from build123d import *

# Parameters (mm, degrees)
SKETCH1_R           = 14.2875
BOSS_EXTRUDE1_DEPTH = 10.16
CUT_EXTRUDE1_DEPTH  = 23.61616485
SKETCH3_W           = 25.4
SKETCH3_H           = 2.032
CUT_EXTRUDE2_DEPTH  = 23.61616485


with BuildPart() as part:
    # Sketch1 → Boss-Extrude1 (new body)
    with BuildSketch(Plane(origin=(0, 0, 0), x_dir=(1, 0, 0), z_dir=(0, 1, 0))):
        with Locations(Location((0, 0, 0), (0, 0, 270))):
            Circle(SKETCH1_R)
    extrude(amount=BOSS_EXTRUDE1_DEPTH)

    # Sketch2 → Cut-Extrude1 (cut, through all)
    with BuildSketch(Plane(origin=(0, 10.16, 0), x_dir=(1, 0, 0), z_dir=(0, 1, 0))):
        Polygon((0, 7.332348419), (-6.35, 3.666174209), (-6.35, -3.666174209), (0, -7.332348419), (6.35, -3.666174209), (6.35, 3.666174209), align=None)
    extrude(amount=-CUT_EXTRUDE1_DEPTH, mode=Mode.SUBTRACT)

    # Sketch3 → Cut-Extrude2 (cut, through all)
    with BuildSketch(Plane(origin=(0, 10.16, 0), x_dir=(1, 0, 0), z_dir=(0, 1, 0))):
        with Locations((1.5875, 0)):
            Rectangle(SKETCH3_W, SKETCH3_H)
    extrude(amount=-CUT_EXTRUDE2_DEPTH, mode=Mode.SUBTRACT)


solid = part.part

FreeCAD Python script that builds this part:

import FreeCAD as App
import Part
import Sketcher
Q = App.Units.Quantity


def add_polygon(sketch, points):
    """Adds a closed chain of lines whose ends are joined by coincident constraints."""
    first, n = sketch.GeometryCount, len(points)
    for a, b in zip(points, points[1:] + points[:1]):
        sketch.addGeometry(Part.LineSegment(App.Vector(*a, 0), App.Vector(*b, 0)), False)
    for i in range(n):
        sketch.addConstraint(Sketcher.Constraint("Coincident", first + i, 2, first + (i + 1) % n, 1))

doc = App.newDocument("Part")
params = doc.addObject("Spreadsheet::Sheet", "Params")
for row, (alias, value) in enumerate([
    ("sketch1_diameter", "1.125 in"),
    ("pad1_length", "0.4 in"),
    ("sketch3_width", "1 in"),
    ("sketch3_height", "0.08 in"),
], start=1):
    params.set(f"A{row}", alias)
    params.set(f"B{row}", "=" + value)
    params.setAlias(f"B{row}", alias)

body = doc.addObject("PartDesign::Body", "Body")

sketch1 = doc.addObject("Sketcher::SketchObject", "Sketch")
body.addObject(sketch1)
sketch1.AttachmentSupport = (doc.XZ_Plane, [""])
sketch1.MapMode = "FlatFace"
sketch1.addGeometry(Part.Circle(App.Vector(0, 0, 0), App.Vector(0, 0, 1), 14), False)
sketch1.addConstraint(Sketcher.Constraint("Coincident", 0, 3, -1, 1))
sketch1.addConstraint(Sketcher.Constraint("Diameter", 0, Q("1.125 in")))
sketch1.setExpression("Constraints[1]", "Params.sketch1_diameter")
pad1 = doc.addObject("PartDesign::Pad", "Pad")
body.addObject(pad1)
pad1.Profile = sketch1
pad1.setExpression("Length", "Params.pad1_length")
pad1.Reversed = True

sketch2 = doc.addObject("Sketcher::SketchObject", "Sketch001")
body.addObject(sketch2)
sketch2.AttachmentSupport = (doc.XZ_Plane, [""])
sketch2.MapMode = "FlatFace"
sketch2.AttachmentOffset = App.Placement(App.Vector(0, 0, -0.4 * 25.4), App.Rotation())
add_polygon(sketch2, [(0, -7), (-6, -4), (-6, 4), (0, 7), (6, 4), (6, -4)])
sketch2.addConstraint(Sketcher.Constraint("Vertical", 1))
sketch2.addConstraint(Sketcher.Constraint("Vertical", 4))
sketch2.addConstraint(Sketcher.Constraint("Symmetric", 0, 2, 3, 2, -1, 1))
sketch2.addConstraint(Sketcher.Constraint("Symmetric", 2, 2, 5, 2, -1, 1))
sketch2.addConstraint(Sketcher.Constraint("PointOnObject", 2, 2, -2))
sketch2.addConstraint(Sketcher.Constraint("Parallel", 2, 5))
sketch2.addConstraint(Sketcher.Constraint("Horizontal", 1, 2, 3, 2))
sketch2.addConstraint(Sketcher.Constraint("Angle", 0, Q("150 deg")))
sketch2.addConstraint(Sketcher.Constraint("DistanceX", 1, 2, 3, 2, Q("0.5 in")))
sketch2.addConstraint(Sketcher.Constraint("DistanceY", 1, 1, 1, 2, 7.332348))
pocket1 = doc.addObject("PartDesign::Pocket", "Pocket")
body.addObject(pocket1)
pocket1.Profile = sketch2
pocket1.Type = "ThroughAll"
pocket1.Reversed = True

sketch3 = doc.addObject("Sketcher::SketchObject", "Sketch002")
body.addObject(sketch3)
sketch3.AttachmentSupport = (doc.XZ_Plane, [""])
sketch3.MapMode = "FlatFace"
sketch3.AttachmentOffset = App.Placement(App.Vector(0, 0, -0.4 * 25.4), App.Rotation())
add_polygon(sketch3, [(-11.1, -1), (-11.1, 1), (14.3, 1), (14.3, -1)])
sketch3.addConstraint(Sketcher.Constraint("Vertical", 0))
sketch3.addConstraint(Sketcher.Constraint("Horizontal", 1))
sketch3.addConstraint(Sketcher.Constraint("Vertical", 2))
sketch3.addConstraint(Sketcher.Constraint("Horizontal", 3))
sketch3.addConstraint(Sketcher.Constraint("DistanceX", 1, 1, 1, 2, Q("1 in")))
sketch3.addConstraint(Sketcher.Constraint("DistanceY", 0, 1, 0, 2, Q("0.08 in")))
sketch3.addConstraint(Sketcher.Constraint("DistanceY", -1, 1, 0, 2, Q("0.04 in")))
sketch3.addConstraint(Sketcher.Constraint("DistanceX", 0, 2, -1, 1, Q("0.4375 in")))
sketch3.setExpression("Constraints[8]", "Params.sketch3_width")
sketch3.setExpression("Constraints[9]", "Params.sketch3_height")
pocket2 = doc.addObject("PartDesign::Pocket", "Pocket001")
body.addObject(pocket2)
pocket2.Profile = sketch3
pocket2.Type = "ThroughAll"
pocket2.Reversed = True

doc.recompute()
